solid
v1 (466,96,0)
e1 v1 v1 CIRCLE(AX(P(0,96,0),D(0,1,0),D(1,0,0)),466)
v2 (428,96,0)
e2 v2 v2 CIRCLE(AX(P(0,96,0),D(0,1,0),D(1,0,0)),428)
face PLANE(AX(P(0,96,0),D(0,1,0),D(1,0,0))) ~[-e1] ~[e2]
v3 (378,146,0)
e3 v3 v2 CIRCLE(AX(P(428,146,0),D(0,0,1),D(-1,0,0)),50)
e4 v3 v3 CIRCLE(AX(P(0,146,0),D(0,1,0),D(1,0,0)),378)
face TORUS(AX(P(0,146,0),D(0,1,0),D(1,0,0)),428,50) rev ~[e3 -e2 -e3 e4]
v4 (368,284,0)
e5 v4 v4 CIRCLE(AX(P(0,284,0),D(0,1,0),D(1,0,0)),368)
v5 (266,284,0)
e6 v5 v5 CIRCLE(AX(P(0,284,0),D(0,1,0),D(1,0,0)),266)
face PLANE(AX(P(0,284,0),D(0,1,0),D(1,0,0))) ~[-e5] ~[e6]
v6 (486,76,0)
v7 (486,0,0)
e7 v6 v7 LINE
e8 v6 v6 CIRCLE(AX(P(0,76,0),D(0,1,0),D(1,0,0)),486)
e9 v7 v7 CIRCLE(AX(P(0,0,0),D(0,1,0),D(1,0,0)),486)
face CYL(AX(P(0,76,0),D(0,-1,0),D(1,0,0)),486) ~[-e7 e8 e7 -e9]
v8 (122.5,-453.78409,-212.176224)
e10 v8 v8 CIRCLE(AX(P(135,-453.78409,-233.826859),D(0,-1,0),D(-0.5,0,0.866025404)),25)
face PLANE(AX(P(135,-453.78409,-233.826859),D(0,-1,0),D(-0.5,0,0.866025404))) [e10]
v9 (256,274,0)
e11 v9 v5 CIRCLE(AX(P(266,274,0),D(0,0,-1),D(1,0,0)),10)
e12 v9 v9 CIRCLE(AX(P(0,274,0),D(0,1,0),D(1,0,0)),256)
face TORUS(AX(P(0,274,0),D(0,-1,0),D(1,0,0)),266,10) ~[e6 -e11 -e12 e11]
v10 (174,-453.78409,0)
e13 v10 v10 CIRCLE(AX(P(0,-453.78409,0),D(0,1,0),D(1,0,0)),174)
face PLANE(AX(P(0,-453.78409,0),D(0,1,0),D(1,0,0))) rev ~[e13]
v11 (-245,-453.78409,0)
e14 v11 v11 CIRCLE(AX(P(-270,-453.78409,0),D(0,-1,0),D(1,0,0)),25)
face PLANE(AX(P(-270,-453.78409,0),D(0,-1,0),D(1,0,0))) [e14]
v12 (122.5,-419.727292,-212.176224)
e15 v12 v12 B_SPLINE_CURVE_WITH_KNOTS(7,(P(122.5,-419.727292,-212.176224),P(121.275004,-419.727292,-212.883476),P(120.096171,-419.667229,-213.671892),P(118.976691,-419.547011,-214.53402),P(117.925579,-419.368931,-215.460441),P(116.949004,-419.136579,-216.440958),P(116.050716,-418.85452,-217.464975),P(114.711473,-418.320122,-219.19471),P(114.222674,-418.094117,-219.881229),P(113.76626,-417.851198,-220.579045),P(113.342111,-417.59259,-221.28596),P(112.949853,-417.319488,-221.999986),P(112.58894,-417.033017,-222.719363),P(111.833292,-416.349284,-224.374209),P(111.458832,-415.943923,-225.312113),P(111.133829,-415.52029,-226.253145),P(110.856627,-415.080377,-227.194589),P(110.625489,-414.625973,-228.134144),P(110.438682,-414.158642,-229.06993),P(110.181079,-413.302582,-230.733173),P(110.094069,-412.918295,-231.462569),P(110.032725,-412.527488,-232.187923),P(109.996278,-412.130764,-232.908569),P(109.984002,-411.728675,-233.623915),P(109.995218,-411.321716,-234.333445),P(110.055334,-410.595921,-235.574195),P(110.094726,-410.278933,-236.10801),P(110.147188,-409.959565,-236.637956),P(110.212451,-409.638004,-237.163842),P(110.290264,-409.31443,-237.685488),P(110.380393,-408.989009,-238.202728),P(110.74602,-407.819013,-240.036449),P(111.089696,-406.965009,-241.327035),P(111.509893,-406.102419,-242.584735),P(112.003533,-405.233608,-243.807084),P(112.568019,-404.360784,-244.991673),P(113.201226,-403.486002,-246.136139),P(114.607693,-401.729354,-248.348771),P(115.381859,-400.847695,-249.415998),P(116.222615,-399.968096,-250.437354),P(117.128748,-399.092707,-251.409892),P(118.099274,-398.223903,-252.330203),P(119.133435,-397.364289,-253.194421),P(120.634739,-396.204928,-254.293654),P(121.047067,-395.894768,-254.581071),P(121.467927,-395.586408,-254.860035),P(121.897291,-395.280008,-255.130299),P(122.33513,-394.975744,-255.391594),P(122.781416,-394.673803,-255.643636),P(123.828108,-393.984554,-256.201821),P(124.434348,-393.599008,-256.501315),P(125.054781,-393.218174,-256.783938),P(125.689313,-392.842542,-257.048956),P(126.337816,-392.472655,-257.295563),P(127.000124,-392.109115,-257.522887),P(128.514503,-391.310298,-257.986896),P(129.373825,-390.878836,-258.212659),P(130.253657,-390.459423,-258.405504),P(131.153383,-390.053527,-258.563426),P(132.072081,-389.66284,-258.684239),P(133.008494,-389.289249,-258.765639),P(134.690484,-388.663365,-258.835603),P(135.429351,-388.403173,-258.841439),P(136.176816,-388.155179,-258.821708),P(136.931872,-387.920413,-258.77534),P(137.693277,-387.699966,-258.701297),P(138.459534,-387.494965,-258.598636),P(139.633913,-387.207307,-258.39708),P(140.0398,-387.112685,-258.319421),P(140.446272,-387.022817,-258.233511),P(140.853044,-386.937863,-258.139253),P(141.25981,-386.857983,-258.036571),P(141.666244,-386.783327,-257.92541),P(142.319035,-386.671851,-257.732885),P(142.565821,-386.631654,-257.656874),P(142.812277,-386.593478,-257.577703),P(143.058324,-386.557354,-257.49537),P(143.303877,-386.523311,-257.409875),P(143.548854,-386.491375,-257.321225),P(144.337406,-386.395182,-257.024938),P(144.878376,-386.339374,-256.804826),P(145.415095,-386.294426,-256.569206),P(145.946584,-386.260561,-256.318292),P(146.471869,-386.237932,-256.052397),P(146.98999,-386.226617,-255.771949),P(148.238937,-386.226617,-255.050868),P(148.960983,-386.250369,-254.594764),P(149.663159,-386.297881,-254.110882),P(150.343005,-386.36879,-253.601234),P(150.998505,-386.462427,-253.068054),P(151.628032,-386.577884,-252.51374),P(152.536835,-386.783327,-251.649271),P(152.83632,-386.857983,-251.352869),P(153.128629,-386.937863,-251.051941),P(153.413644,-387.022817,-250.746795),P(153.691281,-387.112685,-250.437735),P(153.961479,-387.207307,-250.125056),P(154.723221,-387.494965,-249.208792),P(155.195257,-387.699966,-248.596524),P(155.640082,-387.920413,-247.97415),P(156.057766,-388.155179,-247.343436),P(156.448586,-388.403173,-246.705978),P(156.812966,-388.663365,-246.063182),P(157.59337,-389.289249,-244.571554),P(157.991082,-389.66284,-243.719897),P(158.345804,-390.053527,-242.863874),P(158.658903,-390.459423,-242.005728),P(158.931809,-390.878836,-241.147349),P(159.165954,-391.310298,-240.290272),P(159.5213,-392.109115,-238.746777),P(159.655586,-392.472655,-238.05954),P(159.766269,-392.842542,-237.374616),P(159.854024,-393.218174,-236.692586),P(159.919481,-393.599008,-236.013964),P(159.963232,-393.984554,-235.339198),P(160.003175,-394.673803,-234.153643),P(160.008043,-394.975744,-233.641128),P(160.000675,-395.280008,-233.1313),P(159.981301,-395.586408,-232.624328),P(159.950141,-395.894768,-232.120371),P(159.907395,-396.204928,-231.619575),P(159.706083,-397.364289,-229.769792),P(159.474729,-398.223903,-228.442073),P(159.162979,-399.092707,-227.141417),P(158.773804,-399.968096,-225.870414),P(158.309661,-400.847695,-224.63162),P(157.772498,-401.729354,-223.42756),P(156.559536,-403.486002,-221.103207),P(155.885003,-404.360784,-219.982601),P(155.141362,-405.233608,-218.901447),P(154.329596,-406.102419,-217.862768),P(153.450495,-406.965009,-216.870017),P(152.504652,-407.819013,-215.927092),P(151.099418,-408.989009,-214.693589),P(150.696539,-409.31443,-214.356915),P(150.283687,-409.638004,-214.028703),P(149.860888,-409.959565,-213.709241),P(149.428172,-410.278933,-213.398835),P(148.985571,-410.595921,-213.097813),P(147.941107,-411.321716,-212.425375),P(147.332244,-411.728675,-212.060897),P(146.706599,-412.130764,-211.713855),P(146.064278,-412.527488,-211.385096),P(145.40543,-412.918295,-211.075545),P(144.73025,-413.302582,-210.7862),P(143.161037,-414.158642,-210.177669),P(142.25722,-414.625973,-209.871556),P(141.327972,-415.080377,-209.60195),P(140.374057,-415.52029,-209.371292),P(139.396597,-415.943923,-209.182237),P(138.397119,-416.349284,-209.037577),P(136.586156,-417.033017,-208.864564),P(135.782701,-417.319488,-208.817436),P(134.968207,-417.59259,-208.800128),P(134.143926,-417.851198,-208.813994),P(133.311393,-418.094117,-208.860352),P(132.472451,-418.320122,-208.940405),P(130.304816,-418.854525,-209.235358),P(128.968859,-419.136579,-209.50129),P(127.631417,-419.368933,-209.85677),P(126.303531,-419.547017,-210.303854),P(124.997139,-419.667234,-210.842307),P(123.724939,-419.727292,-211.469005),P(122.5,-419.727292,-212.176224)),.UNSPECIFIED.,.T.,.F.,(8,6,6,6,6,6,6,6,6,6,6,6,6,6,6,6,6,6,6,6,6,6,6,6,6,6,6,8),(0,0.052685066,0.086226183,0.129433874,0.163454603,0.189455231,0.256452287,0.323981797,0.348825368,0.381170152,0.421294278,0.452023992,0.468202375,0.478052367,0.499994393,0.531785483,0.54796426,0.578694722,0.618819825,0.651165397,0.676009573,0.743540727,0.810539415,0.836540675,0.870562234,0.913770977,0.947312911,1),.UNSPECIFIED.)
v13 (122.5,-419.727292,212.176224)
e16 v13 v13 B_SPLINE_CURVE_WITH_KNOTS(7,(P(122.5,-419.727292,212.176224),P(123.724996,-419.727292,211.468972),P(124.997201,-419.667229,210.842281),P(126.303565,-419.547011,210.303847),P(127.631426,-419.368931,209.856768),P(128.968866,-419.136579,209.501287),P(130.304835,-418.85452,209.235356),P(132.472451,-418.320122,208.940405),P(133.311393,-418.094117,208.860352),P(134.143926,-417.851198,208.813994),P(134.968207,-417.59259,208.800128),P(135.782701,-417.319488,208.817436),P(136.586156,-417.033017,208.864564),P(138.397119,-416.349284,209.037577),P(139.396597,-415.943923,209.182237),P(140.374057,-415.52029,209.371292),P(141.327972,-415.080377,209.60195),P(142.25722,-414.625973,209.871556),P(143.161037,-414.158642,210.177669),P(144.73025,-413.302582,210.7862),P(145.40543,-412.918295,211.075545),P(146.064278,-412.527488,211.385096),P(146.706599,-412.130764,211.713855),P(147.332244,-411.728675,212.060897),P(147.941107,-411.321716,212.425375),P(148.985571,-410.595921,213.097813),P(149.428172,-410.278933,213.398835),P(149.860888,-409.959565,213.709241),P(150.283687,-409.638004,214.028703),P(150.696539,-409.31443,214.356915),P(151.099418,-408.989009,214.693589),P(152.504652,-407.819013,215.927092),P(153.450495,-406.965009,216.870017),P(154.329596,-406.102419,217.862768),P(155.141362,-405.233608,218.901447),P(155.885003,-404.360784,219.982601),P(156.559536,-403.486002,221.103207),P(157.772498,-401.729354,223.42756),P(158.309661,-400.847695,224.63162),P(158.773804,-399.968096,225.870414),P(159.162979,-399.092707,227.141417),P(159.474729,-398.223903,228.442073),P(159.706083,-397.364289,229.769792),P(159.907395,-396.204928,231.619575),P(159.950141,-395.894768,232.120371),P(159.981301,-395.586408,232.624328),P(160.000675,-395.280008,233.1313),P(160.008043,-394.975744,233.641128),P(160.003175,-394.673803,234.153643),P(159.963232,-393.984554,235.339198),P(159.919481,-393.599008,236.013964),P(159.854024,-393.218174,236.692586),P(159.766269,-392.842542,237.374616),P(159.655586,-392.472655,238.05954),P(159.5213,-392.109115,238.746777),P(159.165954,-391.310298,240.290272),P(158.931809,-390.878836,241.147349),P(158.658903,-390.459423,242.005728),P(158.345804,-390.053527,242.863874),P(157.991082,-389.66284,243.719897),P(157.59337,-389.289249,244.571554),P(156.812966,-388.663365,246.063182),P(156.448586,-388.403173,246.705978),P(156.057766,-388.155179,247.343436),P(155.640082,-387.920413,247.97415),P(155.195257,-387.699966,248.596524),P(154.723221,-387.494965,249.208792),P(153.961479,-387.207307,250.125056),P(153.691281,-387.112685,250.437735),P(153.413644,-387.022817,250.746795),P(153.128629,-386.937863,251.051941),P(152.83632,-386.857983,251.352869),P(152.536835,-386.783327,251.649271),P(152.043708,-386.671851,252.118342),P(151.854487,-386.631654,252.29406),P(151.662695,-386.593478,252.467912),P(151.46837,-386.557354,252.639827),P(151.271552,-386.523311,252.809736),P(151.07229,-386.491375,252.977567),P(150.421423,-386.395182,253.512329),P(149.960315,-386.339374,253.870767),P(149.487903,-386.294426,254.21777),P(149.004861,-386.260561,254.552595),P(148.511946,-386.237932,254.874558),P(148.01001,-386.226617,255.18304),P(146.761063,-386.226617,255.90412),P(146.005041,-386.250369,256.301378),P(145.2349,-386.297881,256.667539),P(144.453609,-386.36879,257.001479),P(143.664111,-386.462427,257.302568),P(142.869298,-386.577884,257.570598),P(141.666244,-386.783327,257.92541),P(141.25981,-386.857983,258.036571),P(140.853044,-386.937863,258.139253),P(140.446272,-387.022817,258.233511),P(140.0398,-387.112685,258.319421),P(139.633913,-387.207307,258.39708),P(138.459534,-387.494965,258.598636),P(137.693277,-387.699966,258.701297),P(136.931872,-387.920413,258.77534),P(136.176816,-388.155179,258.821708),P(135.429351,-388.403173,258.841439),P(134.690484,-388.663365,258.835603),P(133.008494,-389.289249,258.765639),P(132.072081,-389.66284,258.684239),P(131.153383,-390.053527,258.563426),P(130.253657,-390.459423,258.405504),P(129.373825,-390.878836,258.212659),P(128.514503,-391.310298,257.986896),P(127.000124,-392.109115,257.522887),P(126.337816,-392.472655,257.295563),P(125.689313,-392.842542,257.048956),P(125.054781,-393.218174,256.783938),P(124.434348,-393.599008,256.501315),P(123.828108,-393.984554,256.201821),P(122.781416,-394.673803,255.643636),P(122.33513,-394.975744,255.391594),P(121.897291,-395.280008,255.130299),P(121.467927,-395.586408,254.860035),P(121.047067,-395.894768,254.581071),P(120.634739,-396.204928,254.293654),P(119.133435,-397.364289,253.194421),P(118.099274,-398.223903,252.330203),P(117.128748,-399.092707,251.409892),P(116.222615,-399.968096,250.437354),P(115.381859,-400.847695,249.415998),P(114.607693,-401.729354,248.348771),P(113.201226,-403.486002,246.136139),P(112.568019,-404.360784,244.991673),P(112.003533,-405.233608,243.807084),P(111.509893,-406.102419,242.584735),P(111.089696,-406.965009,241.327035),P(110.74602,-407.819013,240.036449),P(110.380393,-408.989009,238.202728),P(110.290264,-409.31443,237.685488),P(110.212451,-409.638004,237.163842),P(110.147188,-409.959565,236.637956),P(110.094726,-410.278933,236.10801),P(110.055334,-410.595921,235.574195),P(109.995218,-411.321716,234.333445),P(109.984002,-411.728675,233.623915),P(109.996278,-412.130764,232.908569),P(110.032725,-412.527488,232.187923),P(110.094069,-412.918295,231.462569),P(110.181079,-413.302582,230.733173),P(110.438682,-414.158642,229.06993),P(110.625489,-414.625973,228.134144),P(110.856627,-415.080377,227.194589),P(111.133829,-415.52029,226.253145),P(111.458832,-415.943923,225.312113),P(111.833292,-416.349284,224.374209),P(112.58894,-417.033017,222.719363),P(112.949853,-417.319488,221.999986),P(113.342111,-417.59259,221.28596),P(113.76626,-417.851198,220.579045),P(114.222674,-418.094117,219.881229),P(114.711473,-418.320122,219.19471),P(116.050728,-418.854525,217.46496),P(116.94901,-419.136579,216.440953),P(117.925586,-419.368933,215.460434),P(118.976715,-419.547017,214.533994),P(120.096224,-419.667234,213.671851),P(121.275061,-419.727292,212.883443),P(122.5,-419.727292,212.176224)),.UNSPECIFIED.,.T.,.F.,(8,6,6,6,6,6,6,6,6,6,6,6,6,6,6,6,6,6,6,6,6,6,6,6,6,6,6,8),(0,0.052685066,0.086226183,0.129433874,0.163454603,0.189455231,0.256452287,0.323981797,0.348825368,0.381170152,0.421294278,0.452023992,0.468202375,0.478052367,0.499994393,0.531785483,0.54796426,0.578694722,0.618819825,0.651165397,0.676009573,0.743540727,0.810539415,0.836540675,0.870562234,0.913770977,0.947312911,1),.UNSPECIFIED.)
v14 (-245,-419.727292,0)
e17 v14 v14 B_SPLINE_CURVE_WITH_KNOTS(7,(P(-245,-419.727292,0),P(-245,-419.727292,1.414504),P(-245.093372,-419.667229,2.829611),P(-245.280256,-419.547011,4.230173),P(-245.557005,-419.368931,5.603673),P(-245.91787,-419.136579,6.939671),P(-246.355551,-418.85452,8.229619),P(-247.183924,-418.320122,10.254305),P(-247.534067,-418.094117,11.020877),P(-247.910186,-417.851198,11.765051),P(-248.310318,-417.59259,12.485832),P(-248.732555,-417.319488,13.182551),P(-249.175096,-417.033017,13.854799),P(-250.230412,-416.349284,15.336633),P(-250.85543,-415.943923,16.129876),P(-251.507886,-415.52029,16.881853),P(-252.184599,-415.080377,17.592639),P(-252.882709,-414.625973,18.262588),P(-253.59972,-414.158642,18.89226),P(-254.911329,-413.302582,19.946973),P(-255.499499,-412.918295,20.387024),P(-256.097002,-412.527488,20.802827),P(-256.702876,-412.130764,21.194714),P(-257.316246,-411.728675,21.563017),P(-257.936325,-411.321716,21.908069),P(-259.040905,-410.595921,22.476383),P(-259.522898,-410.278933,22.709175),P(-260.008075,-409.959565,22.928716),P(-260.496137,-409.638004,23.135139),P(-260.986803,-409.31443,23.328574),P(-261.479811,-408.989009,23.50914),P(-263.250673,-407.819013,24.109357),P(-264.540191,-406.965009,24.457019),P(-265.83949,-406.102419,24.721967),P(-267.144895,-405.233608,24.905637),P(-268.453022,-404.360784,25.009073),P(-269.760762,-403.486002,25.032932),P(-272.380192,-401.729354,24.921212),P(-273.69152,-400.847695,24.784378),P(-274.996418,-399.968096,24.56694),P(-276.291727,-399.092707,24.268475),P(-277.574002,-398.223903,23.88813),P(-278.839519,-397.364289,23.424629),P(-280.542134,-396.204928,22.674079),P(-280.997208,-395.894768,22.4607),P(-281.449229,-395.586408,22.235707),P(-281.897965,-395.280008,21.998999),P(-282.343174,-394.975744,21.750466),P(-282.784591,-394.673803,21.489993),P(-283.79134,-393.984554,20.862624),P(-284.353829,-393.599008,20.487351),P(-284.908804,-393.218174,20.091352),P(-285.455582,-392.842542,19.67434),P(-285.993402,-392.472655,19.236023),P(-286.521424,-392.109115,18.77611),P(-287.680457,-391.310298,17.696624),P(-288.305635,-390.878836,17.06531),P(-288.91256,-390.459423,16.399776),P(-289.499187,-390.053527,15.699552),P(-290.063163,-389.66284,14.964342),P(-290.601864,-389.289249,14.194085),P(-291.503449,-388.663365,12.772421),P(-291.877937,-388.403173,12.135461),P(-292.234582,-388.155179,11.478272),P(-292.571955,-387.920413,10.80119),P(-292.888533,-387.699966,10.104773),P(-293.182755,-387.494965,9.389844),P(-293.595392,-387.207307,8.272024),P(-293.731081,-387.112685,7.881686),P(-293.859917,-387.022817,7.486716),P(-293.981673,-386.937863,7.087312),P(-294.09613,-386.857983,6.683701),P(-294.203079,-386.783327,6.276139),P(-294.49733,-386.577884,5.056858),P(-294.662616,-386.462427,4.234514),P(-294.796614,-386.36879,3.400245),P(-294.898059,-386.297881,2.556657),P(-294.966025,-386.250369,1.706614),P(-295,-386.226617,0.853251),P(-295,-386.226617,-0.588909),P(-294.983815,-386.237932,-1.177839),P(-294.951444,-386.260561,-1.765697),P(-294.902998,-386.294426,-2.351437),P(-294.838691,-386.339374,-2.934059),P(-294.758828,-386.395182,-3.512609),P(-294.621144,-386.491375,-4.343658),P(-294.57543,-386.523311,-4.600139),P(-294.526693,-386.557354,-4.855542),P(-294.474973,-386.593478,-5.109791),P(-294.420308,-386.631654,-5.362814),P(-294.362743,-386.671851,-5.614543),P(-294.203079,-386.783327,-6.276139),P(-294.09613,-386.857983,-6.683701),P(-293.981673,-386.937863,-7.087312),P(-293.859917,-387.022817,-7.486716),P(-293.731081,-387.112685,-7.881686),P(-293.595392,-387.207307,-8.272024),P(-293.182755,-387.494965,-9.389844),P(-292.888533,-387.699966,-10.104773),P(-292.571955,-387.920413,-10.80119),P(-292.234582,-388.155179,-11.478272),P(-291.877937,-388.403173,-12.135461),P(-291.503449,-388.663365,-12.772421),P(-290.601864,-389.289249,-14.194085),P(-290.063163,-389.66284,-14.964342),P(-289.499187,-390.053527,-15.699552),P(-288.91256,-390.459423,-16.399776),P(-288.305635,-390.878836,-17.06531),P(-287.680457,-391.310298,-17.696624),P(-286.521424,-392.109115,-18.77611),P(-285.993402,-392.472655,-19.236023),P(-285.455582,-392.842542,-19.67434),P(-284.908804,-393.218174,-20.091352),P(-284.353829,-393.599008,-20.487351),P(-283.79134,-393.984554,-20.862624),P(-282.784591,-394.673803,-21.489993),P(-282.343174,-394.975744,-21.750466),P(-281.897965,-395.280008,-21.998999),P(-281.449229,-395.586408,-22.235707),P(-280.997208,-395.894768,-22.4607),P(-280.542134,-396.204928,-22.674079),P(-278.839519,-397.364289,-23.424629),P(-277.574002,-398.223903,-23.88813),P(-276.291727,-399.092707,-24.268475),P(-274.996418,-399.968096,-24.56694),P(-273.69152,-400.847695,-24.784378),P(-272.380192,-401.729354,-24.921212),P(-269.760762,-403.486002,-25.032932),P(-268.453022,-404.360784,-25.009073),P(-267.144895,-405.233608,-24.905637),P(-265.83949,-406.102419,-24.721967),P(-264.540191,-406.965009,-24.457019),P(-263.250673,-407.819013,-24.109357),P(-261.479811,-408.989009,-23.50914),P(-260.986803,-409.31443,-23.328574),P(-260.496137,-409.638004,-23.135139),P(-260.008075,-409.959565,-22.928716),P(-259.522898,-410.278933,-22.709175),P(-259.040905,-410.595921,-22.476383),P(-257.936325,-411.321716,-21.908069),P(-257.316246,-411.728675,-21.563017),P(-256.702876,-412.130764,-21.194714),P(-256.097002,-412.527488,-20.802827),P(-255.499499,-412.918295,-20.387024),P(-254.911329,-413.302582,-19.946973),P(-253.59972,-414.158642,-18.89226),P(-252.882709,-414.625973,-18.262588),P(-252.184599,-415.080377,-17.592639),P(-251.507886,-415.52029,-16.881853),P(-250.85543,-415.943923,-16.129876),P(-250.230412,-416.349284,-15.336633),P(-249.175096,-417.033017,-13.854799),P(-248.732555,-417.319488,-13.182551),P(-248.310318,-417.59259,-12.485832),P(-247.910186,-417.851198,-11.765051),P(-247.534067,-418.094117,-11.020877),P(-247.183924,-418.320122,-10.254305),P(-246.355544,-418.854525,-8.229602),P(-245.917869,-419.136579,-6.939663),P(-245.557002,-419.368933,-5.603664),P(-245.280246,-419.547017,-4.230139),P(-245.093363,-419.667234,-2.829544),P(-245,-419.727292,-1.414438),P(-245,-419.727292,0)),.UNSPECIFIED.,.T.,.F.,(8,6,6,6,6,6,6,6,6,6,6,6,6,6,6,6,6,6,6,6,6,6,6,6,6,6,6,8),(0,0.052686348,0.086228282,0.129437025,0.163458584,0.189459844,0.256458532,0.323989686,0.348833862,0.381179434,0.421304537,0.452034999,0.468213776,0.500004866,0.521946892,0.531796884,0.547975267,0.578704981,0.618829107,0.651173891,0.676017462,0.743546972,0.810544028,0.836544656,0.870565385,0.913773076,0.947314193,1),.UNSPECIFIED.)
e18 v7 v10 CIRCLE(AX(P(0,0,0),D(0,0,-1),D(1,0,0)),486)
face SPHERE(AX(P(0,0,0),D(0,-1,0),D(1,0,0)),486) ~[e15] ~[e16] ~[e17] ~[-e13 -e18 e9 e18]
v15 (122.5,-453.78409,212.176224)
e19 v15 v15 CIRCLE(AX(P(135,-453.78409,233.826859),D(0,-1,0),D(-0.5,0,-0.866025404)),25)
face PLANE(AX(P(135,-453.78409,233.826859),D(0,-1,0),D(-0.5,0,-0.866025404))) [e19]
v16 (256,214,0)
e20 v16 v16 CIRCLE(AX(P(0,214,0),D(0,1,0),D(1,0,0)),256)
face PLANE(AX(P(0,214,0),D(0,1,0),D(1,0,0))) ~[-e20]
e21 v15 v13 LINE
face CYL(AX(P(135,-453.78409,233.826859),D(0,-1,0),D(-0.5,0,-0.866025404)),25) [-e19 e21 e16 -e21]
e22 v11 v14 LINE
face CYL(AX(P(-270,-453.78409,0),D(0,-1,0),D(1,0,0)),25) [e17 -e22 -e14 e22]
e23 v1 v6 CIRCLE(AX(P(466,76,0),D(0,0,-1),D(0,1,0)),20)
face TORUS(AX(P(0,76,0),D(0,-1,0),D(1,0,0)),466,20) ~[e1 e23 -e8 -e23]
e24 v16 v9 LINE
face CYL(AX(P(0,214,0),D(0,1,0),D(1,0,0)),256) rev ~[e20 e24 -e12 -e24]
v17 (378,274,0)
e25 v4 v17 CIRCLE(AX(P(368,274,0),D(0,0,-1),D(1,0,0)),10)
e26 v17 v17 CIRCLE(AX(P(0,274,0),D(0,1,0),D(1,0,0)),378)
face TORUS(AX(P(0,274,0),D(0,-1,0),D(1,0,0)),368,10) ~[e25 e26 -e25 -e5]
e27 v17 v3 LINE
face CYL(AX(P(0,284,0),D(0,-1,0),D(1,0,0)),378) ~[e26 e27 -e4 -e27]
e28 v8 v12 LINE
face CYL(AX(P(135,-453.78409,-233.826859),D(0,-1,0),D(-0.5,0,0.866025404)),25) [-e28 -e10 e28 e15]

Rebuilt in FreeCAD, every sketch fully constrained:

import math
import FreeCAD as App
import Part
import Sketcher


def edges_at(feature, points):
    """Names of the edges that pass closest to the given points."""
    edges = feature.Shape.Edges
    near = lambda p: min(range(len(edges)), key=lambda i: edges[i].distToShape(Part.Vertex(*p))[0])
    return sorted({f"Edge{near(p) + 1}" for p in points})

doc = App.newDocument("Part")
body = doc.addObject("PartDesign::Body", "Body")

# Sketch on XY plane
sketch1 = doc.addObject("Sketcher::SketchObject", "Sketch")
body.addObject(sketch1)
sketch1.AttachmentSupport = (doc.XY_Plane, [""])
sketch1.MapMode = "FlatFace"
sketch1.addGeometry([
    Part.LineSegment(App.Vector(256, 214, 0), App.Vector(0, 214, 0)),  # 0
    Part.LineSegment(App.Vector(0, 214, 0), App.Vector(0, -454, 0)),  # 1
    Part.LineSegment(App.Vector(0, -454, 0), App.Vector(174, -454, 0)),  # 2
    Part.ArcOfCircle(Part.Circle(App.Vector(0, 0, 0), App.Vector(0, 0, 1), 486), math.radians(-69), math.radians(0)),  # 3
    Part.LineSegment(App.Vector(486, 0, 0), App.Vector(486, 76, 0)),  # 4
    Part.ArcOfCircle(Part.Circle(App.Vector(466, 76, 0), App.Vector(0, 0, 1), 20), math.radians(0), math.radians(90)),  # 5
    Part.LineSegment(App.Vector(466, 96, 0), App.Vector(428, 96, 0)),  # 6
    Part.ArcOfCircle(Part.Circle(App.Vector(428, 146, 0), App.Vector(0, 0, 1), 50), math.radians(-180), math.radians(-90)),  # 7
    Part.LineSegment(App.Vector(378, 146, 0), App.Vector(378, 284, 0)),  # 8
    Part.LineSegment(App.Vector(378, 284, 0), App.Vector(256, 284, 0)),  # 9
    Part.LineSegment(App.Vector(256, 284, 0), App.Vector(256, 214, 0)),  # 10
], False)
sketch1.addConstraint([
    Sketcher.Constraint("Coincident", 0, 2, 1, 1),
    Sketcher.Constraint("Coincident", 1, 2, 2, 1),
    Sketcher.Constraint("Coincident", 2, 2, 3, 1),
    Sketcher.Constraint("Tangent", 3, 2, 4, 1),
    Sketcher.Constraint("Tangent", 4, 2, 5, 1),
    Sketcher.Constraint("Tangent", 5, 2, 6, 1),
    Sketcher.Constraint("Tangent", 6, 2, 7, 2),
    Sketcher.Constraint("Tangent", 7, 1, 8, 1),
    Sketcher.Constraint("Coincident", 8, 2, 9, 1),
    Sketcher.Constraint("Coincident", 9, 2, 10, 1),
    Sketcher.Constraint("Coincident", 10, 2, 0, 1),
    Sketcher.Constraint("Horizontal", 0),
    Sketcher.Constraint("Vertical", 1),
    Sketcher.Constraint("Horizontal", 2),
    Sketcher.Constraint("Vertical", 4),
    Sketcher.Constraint("Horizontal", 6),
    Sketcher.Constraint("Vertical", 8),
    Sketcher.Constraint("Horizontal", 9),
    Sketcher.Constraint("Vertical", 10),
    Sketcher.Constraint("Coincident", 3, 3, -1, 1),
    Sketcher.Constraint("PointOnObject", 0, 2, -2),
    Sketcher.Constraint("Radius", 3, 486.0),
    Sketcher.Constraint("Radius", 5, 20.0),
    Sketcher.Constraint("Radius", 7, 50.0),
    Sketcher.Constraint("DistanceX", 0, 2, 0, 1, 256.0),
    Sketcher.Constraint("DistanceX", 2, 1, 2, 2, 174.0),
    Sketcher.Constraint("DistanceX", 6, 2, 6, 1, 38.0),
    Sketcher.Constraint("DistanceY", 4, 1, 4, 2, 76.0),
    Sketcher.Constraint("DistanceY", 8, 1, 8, 2, 138.0),
    Sketcher.Constraint("DistanceY", 10, 2, 10, 1, 70.0),
])
revolution = doc.addObject("PartDesign::Revolution", "Revolution")
body.addObject(revolution)
revolution.Profile = sketch1
revolution.ReferenceAxis = (sketch1, ["V_Axis"])
revolution.Angle = 360
doc.recompute()

fillet = doc.addObject("PartDesign::Fillet", "Fillet")
body.addObject(fillet)
fillet.Base = (revolution, edges_at(revolution, [(-256, 284, 0), (-378, 284, 0)]))
fillet.Radius = 10

# Sketch on XZ plane
sketch2 = doc.addObject("Sketcher::SketchObject", "Sketch001")
body.addObject(sketch2)
sketch2.AttachmentSupport = (doc.XZ_Plane, [""])
sketch2.MapMode = "FlatFace"
sketch2.AttachmentOffset = App.Placement(App.Vector(0, 0, 453.78409), App.Rotation())
sketch2.addGeometry(Part.Circle(App.Vector(-270, 0, 0), App.Vector(0, 0, 1), 25), False)
sketch2.addConstraint([
    Sketcher.Constraint("PointOnObject", 0, 3, -1),
    Sketcher.Constraint("Diameter", 0, 50.0),
    Sketcher.Constraint("DistanceX", 0, 3, -1, 1, 270.0),
])
pad1 = doc.addObject("PartDesign::Pad", "Pad")
body.addObject(pad1)
pad1.Profile = sketch2
pad1.Length = 80
pad1.Reversed = True
doc.recompute()

polarpattern = doc.addObject("PartDesign::PolarPattern", "PolarPattern")
body.addObject(polarpattern)
polarpattern.Originals = [pad1]
polarpattern.Axis = (doc.Y_Axis, [""])
polarpattern.Angle = 360
polarpattern.Occurrences = 3
body.Tip = polarpattern

doc.recompute()
